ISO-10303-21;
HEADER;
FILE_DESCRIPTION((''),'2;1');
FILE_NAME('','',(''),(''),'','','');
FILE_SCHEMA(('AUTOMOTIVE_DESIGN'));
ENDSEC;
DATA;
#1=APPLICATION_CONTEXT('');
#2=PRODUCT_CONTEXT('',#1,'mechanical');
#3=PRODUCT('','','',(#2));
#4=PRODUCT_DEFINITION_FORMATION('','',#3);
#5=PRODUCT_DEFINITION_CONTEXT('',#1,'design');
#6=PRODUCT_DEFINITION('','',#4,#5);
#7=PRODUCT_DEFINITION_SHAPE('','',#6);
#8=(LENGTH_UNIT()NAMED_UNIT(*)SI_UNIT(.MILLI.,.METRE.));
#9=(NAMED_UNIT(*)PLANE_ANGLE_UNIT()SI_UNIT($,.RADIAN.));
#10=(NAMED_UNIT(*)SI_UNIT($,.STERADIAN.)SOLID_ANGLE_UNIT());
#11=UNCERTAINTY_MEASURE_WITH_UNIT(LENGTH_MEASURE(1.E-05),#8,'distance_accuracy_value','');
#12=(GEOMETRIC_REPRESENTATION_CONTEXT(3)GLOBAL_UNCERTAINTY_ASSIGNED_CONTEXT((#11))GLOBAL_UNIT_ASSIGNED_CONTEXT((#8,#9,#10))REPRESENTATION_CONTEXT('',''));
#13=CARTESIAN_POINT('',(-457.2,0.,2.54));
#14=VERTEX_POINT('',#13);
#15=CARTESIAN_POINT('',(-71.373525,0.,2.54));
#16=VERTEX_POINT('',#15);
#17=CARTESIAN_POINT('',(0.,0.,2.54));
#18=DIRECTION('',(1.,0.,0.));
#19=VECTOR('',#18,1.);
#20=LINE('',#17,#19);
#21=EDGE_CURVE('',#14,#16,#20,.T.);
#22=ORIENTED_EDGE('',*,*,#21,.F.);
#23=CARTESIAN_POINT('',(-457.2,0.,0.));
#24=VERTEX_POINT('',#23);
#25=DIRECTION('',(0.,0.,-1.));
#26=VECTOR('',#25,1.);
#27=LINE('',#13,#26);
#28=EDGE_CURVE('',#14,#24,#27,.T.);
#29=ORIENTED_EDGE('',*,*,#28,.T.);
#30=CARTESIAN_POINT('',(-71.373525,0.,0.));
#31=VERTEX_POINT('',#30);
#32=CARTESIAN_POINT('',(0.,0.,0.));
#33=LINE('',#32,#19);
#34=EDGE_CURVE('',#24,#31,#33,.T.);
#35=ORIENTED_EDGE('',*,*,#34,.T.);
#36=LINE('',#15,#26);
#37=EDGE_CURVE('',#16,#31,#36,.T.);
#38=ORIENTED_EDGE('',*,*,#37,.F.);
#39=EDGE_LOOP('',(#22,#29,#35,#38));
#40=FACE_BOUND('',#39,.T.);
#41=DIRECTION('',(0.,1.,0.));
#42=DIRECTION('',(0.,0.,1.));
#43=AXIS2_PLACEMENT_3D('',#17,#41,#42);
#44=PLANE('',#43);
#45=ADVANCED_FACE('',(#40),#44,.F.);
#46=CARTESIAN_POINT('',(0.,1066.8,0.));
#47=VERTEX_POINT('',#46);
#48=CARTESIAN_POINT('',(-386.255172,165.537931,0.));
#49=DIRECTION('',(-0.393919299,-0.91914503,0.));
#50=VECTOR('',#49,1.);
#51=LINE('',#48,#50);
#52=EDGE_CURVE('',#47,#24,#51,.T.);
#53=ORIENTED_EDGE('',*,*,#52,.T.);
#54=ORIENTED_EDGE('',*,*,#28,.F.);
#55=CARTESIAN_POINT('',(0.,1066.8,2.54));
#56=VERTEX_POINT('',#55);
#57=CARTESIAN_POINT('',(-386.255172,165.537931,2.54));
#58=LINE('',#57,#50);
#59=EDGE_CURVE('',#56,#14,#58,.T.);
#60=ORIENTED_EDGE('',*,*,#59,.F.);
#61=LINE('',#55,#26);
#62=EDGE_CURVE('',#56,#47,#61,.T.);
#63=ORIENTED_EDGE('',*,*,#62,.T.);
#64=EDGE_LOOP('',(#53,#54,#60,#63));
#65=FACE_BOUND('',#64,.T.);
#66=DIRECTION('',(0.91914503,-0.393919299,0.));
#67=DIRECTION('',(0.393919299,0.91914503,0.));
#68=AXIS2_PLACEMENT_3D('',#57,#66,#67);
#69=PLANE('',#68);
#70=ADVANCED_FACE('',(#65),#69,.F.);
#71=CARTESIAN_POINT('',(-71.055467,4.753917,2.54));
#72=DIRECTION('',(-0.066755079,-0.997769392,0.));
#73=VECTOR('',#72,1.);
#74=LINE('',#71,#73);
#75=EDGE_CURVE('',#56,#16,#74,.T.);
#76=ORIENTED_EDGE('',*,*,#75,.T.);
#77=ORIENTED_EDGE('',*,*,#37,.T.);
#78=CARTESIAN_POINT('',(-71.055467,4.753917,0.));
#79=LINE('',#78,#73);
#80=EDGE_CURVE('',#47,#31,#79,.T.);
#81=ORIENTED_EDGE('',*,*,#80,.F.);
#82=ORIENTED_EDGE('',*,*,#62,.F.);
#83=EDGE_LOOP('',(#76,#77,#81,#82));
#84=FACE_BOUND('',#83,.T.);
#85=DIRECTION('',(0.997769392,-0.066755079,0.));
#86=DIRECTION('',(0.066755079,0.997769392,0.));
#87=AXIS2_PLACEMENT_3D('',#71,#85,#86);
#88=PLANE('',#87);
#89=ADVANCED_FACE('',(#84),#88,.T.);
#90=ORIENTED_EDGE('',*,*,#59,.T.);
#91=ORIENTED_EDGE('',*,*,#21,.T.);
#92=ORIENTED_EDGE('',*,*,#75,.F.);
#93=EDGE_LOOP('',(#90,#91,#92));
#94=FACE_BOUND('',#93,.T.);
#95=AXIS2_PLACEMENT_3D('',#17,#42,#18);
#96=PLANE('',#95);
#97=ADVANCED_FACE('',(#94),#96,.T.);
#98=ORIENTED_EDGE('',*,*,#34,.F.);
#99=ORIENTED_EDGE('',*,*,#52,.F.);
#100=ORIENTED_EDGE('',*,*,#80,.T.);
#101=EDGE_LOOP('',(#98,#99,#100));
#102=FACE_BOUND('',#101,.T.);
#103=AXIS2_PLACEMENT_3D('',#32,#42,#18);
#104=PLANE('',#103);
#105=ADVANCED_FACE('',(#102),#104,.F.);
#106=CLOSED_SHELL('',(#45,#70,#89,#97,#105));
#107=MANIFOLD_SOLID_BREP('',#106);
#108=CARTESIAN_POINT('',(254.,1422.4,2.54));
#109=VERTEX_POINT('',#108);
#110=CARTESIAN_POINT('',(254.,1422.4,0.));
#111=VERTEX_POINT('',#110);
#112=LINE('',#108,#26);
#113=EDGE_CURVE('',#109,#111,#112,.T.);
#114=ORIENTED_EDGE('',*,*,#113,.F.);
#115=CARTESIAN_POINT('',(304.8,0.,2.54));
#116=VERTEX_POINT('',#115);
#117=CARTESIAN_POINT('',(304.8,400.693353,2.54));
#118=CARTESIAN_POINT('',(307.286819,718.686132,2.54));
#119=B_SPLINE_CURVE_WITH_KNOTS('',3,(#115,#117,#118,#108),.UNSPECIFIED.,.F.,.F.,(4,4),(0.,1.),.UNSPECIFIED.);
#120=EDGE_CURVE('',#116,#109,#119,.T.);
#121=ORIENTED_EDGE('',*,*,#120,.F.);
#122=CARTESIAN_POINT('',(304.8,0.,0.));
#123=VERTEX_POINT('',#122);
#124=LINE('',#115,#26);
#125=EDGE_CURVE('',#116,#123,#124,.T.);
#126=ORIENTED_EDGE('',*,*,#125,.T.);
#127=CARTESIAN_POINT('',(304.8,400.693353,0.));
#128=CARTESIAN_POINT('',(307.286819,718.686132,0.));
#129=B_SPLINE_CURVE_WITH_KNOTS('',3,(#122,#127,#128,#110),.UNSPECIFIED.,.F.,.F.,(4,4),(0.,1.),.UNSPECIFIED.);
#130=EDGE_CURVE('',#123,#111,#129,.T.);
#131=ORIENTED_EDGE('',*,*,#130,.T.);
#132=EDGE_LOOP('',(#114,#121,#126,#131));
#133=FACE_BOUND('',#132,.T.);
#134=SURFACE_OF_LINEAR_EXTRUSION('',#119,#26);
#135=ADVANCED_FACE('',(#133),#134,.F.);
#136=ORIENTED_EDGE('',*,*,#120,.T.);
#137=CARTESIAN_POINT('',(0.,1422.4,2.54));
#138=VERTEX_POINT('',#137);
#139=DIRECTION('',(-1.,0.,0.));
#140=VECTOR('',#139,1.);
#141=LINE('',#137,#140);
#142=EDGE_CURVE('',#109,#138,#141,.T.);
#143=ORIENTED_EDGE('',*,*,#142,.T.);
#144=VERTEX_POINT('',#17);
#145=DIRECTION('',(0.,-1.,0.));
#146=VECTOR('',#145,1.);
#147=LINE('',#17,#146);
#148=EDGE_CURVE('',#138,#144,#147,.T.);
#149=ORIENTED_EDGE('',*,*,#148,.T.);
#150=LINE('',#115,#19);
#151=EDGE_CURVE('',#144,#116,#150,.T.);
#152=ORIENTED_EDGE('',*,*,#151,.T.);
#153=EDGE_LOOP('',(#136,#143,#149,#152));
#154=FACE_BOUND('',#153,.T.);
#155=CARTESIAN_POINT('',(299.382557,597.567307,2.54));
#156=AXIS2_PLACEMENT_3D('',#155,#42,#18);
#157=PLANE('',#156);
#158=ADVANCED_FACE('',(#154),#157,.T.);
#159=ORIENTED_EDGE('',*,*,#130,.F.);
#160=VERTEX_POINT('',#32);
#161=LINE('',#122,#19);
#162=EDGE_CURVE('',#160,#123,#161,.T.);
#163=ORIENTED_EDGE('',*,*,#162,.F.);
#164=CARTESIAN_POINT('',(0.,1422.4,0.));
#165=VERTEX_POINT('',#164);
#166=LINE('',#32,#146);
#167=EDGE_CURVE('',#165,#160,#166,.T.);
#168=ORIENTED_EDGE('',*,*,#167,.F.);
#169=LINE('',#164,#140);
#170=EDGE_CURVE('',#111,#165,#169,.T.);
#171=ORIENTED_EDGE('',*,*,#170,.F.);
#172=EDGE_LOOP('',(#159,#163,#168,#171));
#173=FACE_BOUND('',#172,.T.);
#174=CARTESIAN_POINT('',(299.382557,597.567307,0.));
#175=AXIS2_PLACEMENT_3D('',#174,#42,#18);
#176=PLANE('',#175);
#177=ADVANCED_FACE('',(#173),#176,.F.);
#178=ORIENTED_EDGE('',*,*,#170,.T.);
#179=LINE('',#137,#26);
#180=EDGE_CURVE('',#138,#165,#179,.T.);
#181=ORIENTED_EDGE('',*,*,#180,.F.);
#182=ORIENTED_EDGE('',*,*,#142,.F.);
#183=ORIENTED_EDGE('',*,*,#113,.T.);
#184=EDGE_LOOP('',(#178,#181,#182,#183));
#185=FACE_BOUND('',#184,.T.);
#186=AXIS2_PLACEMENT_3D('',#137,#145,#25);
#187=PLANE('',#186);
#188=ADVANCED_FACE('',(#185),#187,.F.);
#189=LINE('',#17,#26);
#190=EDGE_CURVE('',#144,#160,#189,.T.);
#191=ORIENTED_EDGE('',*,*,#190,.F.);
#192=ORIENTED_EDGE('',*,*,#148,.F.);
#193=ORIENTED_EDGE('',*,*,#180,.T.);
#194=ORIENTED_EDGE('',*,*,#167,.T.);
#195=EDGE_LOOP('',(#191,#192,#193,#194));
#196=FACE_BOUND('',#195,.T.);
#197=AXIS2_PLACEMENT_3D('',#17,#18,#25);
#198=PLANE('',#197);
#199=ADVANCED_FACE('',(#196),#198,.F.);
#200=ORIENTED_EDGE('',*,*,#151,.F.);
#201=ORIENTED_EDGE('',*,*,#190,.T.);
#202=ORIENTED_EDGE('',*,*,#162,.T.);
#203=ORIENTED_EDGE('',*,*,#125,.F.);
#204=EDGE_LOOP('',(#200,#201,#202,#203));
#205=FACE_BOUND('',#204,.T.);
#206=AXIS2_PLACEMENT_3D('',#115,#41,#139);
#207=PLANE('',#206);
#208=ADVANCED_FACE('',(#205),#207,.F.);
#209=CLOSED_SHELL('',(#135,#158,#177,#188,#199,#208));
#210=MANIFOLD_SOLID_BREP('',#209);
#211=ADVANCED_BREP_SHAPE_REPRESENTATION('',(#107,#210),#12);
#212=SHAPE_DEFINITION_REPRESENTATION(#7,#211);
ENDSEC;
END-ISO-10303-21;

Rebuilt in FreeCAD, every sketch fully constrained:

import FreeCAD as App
import Part
import Sketcher
Q = App.Units.Quantity


def add_polygon(sketch, points):
    """Adds a closed chain of lines whose ends are joined by coincident constraints."""
    first, n = sketch.GeometryCount, len(points)
    for a, b in zip(points, points[1:] + points[:1]):
        sketch.addGeometry(Part.LineSegment(App.Vector(*a, 0), App.Vector(*b, 0)), False)
    for i in range(n):
        sketch.addConstraint(Sketcher.Constraint("Coincident", first + i, 2, first + (i + 1) % n, 1))

doc = App.newDocument("Part")
body = doc.addObject("PartDesign::Body", "Body")

# Sketch on XY plane
sketch1 = doc.addObject("Sketcher::SketchObject", "Sketch")
body.addObject(sketch1)
sketch1.AttachmentSupport = (doc.XY_Plane, [""])
sketch1.MapMode = "FlatFace"
sketch1.addGeometry([
    Part.LineSegment(App.Vector(0, 1422.4, 0), App.Vector(0, 0, 0)),
    Part.LineSegment(App.Vector(0, 0, 0), App.Vector(304.8, 0, 0)),
    Part.BSplineCurve([App.Vector(254, 1422.4, 0), App.Vector(307.286819, 718.686132, 0), App.Vector(304.8, 400.693353, 0), App.Vector(304.8, 0, 0)], [4, 4], [0, 1], False, 3, [1, 1, 1, 1], False),
    Part.LineSegment(App.Vector(254, 1422.4, 0), App.Vector(0, 1422.4, 0)),
], False)
sketch1.addConstraint([
    Sketcher.Constraint("Block", 2),
    Sketcher.Constraint("Coincident", 0, 2, 1, 1),
    Sketcher.Constraint("Coincident", 1, 2, 2, 2),
    Sketcher.Constraint("Coincident", 2, 1, 3, 1),
    Sketcher.Constraint("Coincident", 3, 2, 0, 1),
    Sketcher.Constraint("Vertical", 0),
    Sketcher.Constraint("Horizontal", 1),
    Sketcher.Constraint("Horizontal", 3),
    Sketcher.Constraint("PointOnObject", 3, 2, -2),
])
pad1 = doc.addObject("PartDesign::Pad", "Pad")
body.addObject(pad1)
pad1.Profile = sketch1
pad1.Length = Q("0.1 in")
body2 = doc.addObject("PartDesign::Body", "Body001")

# Sketch on XY plane
sketch2 = doc.addObject("Sketcher::SketchObject", "Sketch001")
body2.addObject(sketch2)
sketch2.AttachmentSupport = (doc.getObject("XY_Plane001"), [""])
sketch2.MapMode = "FlatFace"
add_polygon(sketch2, [(-71, 0), (0, 1067), (-457, 0)])  # lines 0-2
sketch2.addConstraint([
    Sketcher.Constraint("Horizontal", 2),
    Sketcher.Constraint("PointOnObject", 0, 2, -2),
    Sketcher.Constraint("PointOnObject", 1, 2, -1),
    Sketcher.Constraint("DistanceY", -1, 1, 0, 2, Q("42 in")),
    Sketcher.Constraint("DistanceX", 1, 2, -1, 1, Q("18 in")),
    Sketcher.Constraint("DistanceX", 2, 1, 2, 2, Q("385.826475 mm")),
])
pad2 = doc.addObject("PartDesign::Pad", "Pad001")
body2.addObject(pad2)
pad2.Profile = sketch2
pad2.Length = Q("0.1 in")

doc.recompute()
